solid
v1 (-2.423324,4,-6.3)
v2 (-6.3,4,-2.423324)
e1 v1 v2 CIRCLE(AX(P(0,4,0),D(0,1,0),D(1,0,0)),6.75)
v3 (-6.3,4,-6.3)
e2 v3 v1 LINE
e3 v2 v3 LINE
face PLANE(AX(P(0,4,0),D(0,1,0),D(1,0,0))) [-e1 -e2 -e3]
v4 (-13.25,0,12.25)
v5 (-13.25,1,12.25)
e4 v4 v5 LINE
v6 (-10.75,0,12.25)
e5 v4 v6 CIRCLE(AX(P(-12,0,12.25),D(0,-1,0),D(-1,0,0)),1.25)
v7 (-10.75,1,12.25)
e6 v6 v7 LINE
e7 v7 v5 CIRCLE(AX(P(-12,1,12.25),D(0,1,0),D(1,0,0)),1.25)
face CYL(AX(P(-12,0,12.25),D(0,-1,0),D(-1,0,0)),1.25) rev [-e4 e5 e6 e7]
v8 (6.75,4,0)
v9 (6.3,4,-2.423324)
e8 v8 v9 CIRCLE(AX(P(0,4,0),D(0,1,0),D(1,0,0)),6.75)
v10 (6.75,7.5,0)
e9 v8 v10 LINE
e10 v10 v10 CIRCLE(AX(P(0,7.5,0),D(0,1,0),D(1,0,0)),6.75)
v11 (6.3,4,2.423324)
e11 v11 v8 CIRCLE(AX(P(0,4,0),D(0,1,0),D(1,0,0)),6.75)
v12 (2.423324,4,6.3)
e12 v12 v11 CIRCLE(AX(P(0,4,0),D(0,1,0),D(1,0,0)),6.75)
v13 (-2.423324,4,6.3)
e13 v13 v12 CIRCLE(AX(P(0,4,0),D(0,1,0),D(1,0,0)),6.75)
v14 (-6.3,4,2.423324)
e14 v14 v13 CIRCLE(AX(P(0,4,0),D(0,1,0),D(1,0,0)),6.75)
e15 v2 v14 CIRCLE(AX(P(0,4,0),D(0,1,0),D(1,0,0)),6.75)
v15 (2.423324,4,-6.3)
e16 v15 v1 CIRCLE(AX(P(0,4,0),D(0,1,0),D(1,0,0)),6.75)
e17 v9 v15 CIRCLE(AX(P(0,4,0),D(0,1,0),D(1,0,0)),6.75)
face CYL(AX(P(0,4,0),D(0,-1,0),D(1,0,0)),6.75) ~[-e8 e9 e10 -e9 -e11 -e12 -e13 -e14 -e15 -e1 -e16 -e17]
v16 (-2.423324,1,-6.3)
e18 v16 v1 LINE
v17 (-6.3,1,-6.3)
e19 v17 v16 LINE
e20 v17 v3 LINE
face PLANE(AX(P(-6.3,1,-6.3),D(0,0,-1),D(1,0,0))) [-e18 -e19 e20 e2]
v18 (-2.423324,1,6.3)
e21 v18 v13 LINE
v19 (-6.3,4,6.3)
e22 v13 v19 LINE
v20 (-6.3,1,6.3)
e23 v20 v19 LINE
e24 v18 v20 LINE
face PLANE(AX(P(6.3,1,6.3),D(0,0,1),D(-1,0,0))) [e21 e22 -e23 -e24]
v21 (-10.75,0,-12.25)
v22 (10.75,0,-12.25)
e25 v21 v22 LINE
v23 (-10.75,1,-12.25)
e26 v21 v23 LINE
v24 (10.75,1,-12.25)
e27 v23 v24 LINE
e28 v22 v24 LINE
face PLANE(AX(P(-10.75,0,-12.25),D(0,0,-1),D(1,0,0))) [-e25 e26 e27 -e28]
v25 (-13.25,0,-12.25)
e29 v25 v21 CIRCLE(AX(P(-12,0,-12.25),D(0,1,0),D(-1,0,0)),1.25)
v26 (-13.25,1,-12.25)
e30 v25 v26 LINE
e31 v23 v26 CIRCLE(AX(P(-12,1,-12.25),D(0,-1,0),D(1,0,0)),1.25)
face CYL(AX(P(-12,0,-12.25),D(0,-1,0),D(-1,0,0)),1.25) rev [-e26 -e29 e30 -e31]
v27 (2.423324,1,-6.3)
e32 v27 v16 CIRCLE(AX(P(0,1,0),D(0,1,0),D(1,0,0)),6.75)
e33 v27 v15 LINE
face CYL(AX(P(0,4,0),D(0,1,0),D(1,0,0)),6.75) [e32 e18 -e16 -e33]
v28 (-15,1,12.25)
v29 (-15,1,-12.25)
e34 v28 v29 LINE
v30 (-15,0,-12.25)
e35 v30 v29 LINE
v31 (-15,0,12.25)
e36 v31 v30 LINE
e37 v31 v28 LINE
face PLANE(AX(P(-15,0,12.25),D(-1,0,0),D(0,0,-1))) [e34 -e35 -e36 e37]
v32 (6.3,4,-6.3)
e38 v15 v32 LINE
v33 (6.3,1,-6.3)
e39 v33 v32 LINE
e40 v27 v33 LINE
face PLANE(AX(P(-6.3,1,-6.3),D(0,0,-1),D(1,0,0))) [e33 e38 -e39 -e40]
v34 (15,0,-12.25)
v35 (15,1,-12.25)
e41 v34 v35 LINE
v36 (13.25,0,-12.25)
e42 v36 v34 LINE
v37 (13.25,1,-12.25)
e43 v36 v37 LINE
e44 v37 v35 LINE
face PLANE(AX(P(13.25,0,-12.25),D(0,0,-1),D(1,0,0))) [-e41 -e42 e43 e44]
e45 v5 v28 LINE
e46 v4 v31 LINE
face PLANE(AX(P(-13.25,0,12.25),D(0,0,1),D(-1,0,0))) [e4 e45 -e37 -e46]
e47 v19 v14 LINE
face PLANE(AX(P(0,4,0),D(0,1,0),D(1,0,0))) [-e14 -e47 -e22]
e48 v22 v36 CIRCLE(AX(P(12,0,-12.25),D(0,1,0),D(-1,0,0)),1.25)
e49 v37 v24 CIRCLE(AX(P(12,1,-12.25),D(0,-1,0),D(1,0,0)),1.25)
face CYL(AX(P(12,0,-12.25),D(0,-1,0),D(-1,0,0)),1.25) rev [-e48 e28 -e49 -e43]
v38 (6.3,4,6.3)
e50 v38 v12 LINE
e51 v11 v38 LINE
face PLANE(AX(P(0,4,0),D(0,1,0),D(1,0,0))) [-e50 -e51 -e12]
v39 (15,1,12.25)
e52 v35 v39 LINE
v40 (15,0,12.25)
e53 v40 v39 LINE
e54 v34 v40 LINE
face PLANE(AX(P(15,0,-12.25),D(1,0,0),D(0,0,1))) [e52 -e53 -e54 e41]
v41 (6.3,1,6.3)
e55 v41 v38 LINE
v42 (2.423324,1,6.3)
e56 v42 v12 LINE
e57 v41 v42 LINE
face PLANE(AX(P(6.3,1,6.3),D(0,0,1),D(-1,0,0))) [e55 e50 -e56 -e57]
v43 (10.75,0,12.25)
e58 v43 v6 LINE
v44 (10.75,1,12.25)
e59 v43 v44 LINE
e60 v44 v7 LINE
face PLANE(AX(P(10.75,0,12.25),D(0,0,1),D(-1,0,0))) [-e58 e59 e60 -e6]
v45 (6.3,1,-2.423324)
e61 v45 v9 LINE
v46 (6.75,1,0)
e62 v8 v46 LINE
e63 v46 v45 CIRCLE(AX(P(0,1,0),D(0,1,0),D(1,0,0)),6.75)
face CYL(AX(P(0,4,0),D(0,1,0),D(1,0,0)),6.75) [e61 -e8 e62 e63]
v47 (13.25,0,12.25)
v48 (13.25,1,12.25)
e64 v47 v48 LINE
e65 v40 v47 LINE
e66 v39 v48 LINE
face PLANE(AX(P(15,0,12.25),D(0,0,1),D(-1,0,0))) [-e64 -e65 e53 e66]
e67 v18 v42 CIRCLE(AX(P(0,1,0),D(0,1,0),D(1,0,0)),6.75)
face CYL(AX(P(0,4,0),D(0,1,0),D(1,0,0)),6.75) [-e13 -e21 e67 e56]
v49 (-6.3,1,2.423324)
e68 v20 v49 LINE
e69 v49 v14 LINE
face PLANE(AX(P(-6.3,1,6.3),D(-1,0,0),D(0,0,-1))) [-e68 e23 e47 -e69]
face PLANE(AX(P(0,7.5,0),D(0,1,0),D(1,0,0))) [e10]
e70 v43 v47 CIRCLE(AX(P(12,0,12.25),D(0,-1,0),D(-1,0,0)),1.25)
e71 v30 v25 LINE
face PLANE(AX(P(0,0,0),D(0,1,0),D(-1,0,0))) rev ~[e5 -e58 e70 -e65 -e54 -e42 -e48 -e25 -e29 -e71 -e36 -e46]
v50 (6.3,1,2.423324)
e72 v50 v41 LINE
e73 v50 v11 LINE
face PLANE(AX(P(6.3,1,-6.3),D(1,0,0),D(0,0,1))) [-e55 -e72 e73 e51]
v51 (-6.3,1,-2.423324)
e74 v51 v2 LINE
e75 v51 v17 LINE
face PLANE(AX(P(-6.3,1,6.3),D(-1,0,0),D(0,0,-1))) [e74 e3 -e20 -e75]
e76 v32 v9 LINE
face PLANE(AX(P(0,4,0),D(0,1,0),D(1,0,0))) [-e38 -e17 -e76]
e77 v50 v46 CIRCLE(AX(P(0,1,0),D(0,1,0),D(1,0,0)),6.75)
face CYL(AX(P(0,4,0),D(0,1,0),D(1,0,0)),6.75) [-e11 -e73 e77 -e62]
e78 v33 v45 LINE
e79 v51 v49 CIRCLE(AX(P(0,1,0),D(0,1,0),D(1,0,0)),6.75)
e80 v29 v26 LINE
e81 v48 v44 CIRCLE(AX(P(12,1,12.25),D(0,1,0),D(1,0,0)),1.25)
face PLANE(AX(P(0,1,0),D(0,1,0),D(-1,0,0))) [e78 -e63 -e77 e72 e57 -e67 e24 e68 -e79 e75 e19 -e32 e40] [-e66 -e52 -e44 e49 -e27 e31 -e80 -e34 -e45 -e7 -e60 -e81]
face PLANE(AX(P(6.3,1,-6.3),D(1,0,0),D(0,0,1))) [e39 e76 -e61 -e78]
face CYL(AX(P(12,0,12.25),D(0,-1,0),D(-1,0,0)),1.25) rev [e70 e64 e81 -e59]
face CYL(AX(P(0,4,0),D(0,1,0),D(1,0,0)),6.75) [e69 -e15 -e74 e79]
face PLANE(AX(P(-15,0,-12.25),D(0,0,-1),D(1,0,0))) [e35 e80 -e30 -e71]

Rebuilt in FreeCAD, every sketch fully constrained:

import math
import FreeCAD as App
import Part
import Sketcher

V = App.Vector

doc = App.newDocument("Part")
body = doc.addObject("PartDesign::Body", "Body")

# Sketch on XZ plane
sketch1 = body.newObject("Sketcher::SketchObject", "Sketch")
sketch1.AttachmentSupport = (doc.getObject("XZ_Plane"), [""])
sketch1.MapMode = "FlatFace"
sketch1.addGeometry([
    Part.LineSegment(V(-10.8, 12.2, 0), V(10.8, 12.2, 0)),  # 0
    Part.ArcOfCircle(Part.Circle(V(12, 12.2, 0), V(0, 0, 1), 1.2), math.radians(180), math.radians(360)),  # 1
    Part.LineSegment(V(13.2, 12.2, 0), V(15, 12.2, 0)),  # 2
    Part.LineSegment(V(15, 12.2, 0), V(15, -12.2, 0)),  # 3
    Part.LineSegment(V(15, -12.2, 0), V(13.2, -12.2, 0)),  # 4
    Part.ArcOfCircle(Part.Circle(V(12, -12.2, 0), V(0, 0, 1), 1.2), math.radians(0), math.radians(180)),  # 5
    Part.LineSegment(V(10.8, -12.2, 0), V(-10.8, -12.2, 0)),  # 6
    Part.ArcOfCircle(Part.Circle(V(-12, -12.2, 0), V(0, 0, 1), 1.2), math.radians(0), math.radians(180)),  # 7
    Part.LineSegment(V(-13.2, -12.2, 0), V(-15, -12.2, 0)),  # 8
    Part.LineSegment(V(-15, -12.2, 0), V(-15, 12.2, 0)),  # 9
    Part.LineSegment(V(-15, 12.2, 0), V(-13.2, 12.2, 0)),  # 10
    Part.ArcOfCircle(Part.Circle(V(-12, 12.2, 0), V(0, 0, 1), 1.2), math.radians(180), math.radians(360)),  # 11
], False)
sketch1.addConstraint([
    Sketcher.Constraint("Coincident", 0, 2, 1, 1),
    Sketcher.Constraint("Coincident", 1, 2, 2, 1),
    Sketcher.Constraint("Coincident", 2, 2, 3, 1),
    Sketcher.Constraint("Coincident", 3, 2, 4, 1),
    Sketcher.Constraint("Coincident", 4, 2, 5, 1),
    Sketcher.Constraint("Coincident", 5, 2, 6, 1),
    Sketcher.Constraint("Coincident", 6, 2, 7, 1),
    Sketcher.Constraint("Coincident", 7, 2, 8, 1),
    Sketcher.Constraint("Coincident", 8, 2, 9, 1),
    Sketcher.Constraint("Coincident", 9, 2, 10, 1),
    Sketcher.Constraint("Coincident", 10, 2, 11, 1),
    Sketcher.Constraint("Coincident", 11, 2, 0, 1),
    Sketcher.Constraint("Horizontal", 0),
    Sketcher.Constraint("Horizontal", 2),
    Sketcher.Constraint("Vertical", 3),
    Sketcher.Constraint("Horizontal", 4),
    Sketcher.Constraint("Horizontal", 6),
    Sketcher.Constraint("Horizontal", 8),
    Sketcher.Constraint("Vertical", 9),
    Sketcher.Constraint("Horizontal", 10),
    Sketcher.Constraint("Equal", 1, 5),
    Sketcher.Constraint("Equal", 5, 7),
    Sketcher.Constraint("Equal", 7, 11),
    Sketcher.Constraint("Symmetric", 1, 3, 7, 3, -1, 1),
    Sketcher.Constraint("Symmetric", 5, 3, 11, 3, -1, 1),
    Sketcher.Constraint("Symmetric", 2, 2, 8, 2, -1, 1),
    Sketcher.Constraint("Symmetric", 5, 3, 7, 3, -2),
    Sketcher.Constraint("Horizontal", 11, 3, 0, 2),
    Sketcher.Constraint("Horizontal", 0, 2, 1, 2),
    Sketcher.Constraint("Horizontal", 7, 3, 3, 2),
    Sketcher.Constraint("Horizontal", 4, 2, 5, 2),
    Sketcher.Constraint("Horizontal", 2, 2, 9, 2),
    Sketcher.Constraint("Radius", 1, 1.25),
    Sketcher.Constraint("DistanceY", 3, 2, 3, 1, 24.5),
    Sketcher.Constraint("DistanceX", 7, 3, 5, 3, 24.0),
    Sketcher.Constraint("DistanceX", -1, 1, 2, 2, 15.0),
])
pad1 = body.newObject("PartDesign::Pad", "Pad")
pad1.Profile = sketch1
pad1.Length = 1
pad1.Reversed = True

# Sketch on XZ plane
sketch2 = body.newObject("Sketcher::SketchObject", "Sketch001")
sketch2.AttachmentSupport = (doc.getObject("XZ_Plane"), [""])
sketch2.MapMode = "FlatFace"
sketch2.AttachmentOffset = App.Placement(V(0, 0, -1), App.Rotation())
sketch2.addGeometry([
    Part.LineSegment(V(6, -6, 0), V(-6, -6, 0)),
    Part.LineSegment(V(-6, -6, 0), V(-6, 6, 0)),
    Part.LineSegment(V(-6, 6, 0), V(6, 6, 0)),
    Part.LineSegment(V(6, 6, 0), V(6, -6, 0)),
], False)
sketch2.addConstraint([
    Sketcher.Constraint("Coincident", 0, 2, 1, 1),
    Sketcher.Constraint("Coincident", 1, 2, 2, 1),
    Sketcher.Constraint("Coincident", 2, 2, 3, 1),
    Sketcher.Constraint("Coincident", 3, 2, 0, 1),
    Sketcher.Constraint("Horizontal", 0),
    Sketcher.Constraint("Vertical", 1),
    Sketcher.Constraint("Horizontal", 2),
    Sketcher.Constraint("Vertical", 3),
    Sketcher.Constraint("Symmetric", 0, 2, 2, 2, -1, 1),
    Sketcher.Constraint("Equal", 2, 1),
    Sketcher.Constraint("DistanceX", 0, 2, 0, 1, 12.6),
])
pad2 = body.newObject("PartDesign::Pad", "Pad001")
pad2.Profile = sketch2
pad2.Length = 3
pad2.Reversed = True

# Sketch on XZ plane
sketch3 = body.newObject("Sketcher::SketchObject", "Sketch002")
sketch3.AttachmentSupport = (doc.getObject("XZ_Plane"), [""])
sketch3.MapMode = "FlatFace"
sketch3.AttachmentOffset = App.Placement(V(0, 0, -4), App.Rotation())
sketch3.addGeometry(Part.Circle(V(0, 0, 0), V(0, 0, 1), 7), False)
sketch3.addConstraint([
    Sketcher.Constraint("Coincident", 0, 3, -1, 1),
    Sketcher.Constraint("Diameter", 0, 13.5),
])
pad3 = body.newObject("PartDesign::Pad", "Pad002")
pad3.Profile = sketch3
pad3.Type = "TwoLengths"
pad3.Length = 3.5
pad3.Length2 = 3
pad3.Reversed = True

doc.recompute()
